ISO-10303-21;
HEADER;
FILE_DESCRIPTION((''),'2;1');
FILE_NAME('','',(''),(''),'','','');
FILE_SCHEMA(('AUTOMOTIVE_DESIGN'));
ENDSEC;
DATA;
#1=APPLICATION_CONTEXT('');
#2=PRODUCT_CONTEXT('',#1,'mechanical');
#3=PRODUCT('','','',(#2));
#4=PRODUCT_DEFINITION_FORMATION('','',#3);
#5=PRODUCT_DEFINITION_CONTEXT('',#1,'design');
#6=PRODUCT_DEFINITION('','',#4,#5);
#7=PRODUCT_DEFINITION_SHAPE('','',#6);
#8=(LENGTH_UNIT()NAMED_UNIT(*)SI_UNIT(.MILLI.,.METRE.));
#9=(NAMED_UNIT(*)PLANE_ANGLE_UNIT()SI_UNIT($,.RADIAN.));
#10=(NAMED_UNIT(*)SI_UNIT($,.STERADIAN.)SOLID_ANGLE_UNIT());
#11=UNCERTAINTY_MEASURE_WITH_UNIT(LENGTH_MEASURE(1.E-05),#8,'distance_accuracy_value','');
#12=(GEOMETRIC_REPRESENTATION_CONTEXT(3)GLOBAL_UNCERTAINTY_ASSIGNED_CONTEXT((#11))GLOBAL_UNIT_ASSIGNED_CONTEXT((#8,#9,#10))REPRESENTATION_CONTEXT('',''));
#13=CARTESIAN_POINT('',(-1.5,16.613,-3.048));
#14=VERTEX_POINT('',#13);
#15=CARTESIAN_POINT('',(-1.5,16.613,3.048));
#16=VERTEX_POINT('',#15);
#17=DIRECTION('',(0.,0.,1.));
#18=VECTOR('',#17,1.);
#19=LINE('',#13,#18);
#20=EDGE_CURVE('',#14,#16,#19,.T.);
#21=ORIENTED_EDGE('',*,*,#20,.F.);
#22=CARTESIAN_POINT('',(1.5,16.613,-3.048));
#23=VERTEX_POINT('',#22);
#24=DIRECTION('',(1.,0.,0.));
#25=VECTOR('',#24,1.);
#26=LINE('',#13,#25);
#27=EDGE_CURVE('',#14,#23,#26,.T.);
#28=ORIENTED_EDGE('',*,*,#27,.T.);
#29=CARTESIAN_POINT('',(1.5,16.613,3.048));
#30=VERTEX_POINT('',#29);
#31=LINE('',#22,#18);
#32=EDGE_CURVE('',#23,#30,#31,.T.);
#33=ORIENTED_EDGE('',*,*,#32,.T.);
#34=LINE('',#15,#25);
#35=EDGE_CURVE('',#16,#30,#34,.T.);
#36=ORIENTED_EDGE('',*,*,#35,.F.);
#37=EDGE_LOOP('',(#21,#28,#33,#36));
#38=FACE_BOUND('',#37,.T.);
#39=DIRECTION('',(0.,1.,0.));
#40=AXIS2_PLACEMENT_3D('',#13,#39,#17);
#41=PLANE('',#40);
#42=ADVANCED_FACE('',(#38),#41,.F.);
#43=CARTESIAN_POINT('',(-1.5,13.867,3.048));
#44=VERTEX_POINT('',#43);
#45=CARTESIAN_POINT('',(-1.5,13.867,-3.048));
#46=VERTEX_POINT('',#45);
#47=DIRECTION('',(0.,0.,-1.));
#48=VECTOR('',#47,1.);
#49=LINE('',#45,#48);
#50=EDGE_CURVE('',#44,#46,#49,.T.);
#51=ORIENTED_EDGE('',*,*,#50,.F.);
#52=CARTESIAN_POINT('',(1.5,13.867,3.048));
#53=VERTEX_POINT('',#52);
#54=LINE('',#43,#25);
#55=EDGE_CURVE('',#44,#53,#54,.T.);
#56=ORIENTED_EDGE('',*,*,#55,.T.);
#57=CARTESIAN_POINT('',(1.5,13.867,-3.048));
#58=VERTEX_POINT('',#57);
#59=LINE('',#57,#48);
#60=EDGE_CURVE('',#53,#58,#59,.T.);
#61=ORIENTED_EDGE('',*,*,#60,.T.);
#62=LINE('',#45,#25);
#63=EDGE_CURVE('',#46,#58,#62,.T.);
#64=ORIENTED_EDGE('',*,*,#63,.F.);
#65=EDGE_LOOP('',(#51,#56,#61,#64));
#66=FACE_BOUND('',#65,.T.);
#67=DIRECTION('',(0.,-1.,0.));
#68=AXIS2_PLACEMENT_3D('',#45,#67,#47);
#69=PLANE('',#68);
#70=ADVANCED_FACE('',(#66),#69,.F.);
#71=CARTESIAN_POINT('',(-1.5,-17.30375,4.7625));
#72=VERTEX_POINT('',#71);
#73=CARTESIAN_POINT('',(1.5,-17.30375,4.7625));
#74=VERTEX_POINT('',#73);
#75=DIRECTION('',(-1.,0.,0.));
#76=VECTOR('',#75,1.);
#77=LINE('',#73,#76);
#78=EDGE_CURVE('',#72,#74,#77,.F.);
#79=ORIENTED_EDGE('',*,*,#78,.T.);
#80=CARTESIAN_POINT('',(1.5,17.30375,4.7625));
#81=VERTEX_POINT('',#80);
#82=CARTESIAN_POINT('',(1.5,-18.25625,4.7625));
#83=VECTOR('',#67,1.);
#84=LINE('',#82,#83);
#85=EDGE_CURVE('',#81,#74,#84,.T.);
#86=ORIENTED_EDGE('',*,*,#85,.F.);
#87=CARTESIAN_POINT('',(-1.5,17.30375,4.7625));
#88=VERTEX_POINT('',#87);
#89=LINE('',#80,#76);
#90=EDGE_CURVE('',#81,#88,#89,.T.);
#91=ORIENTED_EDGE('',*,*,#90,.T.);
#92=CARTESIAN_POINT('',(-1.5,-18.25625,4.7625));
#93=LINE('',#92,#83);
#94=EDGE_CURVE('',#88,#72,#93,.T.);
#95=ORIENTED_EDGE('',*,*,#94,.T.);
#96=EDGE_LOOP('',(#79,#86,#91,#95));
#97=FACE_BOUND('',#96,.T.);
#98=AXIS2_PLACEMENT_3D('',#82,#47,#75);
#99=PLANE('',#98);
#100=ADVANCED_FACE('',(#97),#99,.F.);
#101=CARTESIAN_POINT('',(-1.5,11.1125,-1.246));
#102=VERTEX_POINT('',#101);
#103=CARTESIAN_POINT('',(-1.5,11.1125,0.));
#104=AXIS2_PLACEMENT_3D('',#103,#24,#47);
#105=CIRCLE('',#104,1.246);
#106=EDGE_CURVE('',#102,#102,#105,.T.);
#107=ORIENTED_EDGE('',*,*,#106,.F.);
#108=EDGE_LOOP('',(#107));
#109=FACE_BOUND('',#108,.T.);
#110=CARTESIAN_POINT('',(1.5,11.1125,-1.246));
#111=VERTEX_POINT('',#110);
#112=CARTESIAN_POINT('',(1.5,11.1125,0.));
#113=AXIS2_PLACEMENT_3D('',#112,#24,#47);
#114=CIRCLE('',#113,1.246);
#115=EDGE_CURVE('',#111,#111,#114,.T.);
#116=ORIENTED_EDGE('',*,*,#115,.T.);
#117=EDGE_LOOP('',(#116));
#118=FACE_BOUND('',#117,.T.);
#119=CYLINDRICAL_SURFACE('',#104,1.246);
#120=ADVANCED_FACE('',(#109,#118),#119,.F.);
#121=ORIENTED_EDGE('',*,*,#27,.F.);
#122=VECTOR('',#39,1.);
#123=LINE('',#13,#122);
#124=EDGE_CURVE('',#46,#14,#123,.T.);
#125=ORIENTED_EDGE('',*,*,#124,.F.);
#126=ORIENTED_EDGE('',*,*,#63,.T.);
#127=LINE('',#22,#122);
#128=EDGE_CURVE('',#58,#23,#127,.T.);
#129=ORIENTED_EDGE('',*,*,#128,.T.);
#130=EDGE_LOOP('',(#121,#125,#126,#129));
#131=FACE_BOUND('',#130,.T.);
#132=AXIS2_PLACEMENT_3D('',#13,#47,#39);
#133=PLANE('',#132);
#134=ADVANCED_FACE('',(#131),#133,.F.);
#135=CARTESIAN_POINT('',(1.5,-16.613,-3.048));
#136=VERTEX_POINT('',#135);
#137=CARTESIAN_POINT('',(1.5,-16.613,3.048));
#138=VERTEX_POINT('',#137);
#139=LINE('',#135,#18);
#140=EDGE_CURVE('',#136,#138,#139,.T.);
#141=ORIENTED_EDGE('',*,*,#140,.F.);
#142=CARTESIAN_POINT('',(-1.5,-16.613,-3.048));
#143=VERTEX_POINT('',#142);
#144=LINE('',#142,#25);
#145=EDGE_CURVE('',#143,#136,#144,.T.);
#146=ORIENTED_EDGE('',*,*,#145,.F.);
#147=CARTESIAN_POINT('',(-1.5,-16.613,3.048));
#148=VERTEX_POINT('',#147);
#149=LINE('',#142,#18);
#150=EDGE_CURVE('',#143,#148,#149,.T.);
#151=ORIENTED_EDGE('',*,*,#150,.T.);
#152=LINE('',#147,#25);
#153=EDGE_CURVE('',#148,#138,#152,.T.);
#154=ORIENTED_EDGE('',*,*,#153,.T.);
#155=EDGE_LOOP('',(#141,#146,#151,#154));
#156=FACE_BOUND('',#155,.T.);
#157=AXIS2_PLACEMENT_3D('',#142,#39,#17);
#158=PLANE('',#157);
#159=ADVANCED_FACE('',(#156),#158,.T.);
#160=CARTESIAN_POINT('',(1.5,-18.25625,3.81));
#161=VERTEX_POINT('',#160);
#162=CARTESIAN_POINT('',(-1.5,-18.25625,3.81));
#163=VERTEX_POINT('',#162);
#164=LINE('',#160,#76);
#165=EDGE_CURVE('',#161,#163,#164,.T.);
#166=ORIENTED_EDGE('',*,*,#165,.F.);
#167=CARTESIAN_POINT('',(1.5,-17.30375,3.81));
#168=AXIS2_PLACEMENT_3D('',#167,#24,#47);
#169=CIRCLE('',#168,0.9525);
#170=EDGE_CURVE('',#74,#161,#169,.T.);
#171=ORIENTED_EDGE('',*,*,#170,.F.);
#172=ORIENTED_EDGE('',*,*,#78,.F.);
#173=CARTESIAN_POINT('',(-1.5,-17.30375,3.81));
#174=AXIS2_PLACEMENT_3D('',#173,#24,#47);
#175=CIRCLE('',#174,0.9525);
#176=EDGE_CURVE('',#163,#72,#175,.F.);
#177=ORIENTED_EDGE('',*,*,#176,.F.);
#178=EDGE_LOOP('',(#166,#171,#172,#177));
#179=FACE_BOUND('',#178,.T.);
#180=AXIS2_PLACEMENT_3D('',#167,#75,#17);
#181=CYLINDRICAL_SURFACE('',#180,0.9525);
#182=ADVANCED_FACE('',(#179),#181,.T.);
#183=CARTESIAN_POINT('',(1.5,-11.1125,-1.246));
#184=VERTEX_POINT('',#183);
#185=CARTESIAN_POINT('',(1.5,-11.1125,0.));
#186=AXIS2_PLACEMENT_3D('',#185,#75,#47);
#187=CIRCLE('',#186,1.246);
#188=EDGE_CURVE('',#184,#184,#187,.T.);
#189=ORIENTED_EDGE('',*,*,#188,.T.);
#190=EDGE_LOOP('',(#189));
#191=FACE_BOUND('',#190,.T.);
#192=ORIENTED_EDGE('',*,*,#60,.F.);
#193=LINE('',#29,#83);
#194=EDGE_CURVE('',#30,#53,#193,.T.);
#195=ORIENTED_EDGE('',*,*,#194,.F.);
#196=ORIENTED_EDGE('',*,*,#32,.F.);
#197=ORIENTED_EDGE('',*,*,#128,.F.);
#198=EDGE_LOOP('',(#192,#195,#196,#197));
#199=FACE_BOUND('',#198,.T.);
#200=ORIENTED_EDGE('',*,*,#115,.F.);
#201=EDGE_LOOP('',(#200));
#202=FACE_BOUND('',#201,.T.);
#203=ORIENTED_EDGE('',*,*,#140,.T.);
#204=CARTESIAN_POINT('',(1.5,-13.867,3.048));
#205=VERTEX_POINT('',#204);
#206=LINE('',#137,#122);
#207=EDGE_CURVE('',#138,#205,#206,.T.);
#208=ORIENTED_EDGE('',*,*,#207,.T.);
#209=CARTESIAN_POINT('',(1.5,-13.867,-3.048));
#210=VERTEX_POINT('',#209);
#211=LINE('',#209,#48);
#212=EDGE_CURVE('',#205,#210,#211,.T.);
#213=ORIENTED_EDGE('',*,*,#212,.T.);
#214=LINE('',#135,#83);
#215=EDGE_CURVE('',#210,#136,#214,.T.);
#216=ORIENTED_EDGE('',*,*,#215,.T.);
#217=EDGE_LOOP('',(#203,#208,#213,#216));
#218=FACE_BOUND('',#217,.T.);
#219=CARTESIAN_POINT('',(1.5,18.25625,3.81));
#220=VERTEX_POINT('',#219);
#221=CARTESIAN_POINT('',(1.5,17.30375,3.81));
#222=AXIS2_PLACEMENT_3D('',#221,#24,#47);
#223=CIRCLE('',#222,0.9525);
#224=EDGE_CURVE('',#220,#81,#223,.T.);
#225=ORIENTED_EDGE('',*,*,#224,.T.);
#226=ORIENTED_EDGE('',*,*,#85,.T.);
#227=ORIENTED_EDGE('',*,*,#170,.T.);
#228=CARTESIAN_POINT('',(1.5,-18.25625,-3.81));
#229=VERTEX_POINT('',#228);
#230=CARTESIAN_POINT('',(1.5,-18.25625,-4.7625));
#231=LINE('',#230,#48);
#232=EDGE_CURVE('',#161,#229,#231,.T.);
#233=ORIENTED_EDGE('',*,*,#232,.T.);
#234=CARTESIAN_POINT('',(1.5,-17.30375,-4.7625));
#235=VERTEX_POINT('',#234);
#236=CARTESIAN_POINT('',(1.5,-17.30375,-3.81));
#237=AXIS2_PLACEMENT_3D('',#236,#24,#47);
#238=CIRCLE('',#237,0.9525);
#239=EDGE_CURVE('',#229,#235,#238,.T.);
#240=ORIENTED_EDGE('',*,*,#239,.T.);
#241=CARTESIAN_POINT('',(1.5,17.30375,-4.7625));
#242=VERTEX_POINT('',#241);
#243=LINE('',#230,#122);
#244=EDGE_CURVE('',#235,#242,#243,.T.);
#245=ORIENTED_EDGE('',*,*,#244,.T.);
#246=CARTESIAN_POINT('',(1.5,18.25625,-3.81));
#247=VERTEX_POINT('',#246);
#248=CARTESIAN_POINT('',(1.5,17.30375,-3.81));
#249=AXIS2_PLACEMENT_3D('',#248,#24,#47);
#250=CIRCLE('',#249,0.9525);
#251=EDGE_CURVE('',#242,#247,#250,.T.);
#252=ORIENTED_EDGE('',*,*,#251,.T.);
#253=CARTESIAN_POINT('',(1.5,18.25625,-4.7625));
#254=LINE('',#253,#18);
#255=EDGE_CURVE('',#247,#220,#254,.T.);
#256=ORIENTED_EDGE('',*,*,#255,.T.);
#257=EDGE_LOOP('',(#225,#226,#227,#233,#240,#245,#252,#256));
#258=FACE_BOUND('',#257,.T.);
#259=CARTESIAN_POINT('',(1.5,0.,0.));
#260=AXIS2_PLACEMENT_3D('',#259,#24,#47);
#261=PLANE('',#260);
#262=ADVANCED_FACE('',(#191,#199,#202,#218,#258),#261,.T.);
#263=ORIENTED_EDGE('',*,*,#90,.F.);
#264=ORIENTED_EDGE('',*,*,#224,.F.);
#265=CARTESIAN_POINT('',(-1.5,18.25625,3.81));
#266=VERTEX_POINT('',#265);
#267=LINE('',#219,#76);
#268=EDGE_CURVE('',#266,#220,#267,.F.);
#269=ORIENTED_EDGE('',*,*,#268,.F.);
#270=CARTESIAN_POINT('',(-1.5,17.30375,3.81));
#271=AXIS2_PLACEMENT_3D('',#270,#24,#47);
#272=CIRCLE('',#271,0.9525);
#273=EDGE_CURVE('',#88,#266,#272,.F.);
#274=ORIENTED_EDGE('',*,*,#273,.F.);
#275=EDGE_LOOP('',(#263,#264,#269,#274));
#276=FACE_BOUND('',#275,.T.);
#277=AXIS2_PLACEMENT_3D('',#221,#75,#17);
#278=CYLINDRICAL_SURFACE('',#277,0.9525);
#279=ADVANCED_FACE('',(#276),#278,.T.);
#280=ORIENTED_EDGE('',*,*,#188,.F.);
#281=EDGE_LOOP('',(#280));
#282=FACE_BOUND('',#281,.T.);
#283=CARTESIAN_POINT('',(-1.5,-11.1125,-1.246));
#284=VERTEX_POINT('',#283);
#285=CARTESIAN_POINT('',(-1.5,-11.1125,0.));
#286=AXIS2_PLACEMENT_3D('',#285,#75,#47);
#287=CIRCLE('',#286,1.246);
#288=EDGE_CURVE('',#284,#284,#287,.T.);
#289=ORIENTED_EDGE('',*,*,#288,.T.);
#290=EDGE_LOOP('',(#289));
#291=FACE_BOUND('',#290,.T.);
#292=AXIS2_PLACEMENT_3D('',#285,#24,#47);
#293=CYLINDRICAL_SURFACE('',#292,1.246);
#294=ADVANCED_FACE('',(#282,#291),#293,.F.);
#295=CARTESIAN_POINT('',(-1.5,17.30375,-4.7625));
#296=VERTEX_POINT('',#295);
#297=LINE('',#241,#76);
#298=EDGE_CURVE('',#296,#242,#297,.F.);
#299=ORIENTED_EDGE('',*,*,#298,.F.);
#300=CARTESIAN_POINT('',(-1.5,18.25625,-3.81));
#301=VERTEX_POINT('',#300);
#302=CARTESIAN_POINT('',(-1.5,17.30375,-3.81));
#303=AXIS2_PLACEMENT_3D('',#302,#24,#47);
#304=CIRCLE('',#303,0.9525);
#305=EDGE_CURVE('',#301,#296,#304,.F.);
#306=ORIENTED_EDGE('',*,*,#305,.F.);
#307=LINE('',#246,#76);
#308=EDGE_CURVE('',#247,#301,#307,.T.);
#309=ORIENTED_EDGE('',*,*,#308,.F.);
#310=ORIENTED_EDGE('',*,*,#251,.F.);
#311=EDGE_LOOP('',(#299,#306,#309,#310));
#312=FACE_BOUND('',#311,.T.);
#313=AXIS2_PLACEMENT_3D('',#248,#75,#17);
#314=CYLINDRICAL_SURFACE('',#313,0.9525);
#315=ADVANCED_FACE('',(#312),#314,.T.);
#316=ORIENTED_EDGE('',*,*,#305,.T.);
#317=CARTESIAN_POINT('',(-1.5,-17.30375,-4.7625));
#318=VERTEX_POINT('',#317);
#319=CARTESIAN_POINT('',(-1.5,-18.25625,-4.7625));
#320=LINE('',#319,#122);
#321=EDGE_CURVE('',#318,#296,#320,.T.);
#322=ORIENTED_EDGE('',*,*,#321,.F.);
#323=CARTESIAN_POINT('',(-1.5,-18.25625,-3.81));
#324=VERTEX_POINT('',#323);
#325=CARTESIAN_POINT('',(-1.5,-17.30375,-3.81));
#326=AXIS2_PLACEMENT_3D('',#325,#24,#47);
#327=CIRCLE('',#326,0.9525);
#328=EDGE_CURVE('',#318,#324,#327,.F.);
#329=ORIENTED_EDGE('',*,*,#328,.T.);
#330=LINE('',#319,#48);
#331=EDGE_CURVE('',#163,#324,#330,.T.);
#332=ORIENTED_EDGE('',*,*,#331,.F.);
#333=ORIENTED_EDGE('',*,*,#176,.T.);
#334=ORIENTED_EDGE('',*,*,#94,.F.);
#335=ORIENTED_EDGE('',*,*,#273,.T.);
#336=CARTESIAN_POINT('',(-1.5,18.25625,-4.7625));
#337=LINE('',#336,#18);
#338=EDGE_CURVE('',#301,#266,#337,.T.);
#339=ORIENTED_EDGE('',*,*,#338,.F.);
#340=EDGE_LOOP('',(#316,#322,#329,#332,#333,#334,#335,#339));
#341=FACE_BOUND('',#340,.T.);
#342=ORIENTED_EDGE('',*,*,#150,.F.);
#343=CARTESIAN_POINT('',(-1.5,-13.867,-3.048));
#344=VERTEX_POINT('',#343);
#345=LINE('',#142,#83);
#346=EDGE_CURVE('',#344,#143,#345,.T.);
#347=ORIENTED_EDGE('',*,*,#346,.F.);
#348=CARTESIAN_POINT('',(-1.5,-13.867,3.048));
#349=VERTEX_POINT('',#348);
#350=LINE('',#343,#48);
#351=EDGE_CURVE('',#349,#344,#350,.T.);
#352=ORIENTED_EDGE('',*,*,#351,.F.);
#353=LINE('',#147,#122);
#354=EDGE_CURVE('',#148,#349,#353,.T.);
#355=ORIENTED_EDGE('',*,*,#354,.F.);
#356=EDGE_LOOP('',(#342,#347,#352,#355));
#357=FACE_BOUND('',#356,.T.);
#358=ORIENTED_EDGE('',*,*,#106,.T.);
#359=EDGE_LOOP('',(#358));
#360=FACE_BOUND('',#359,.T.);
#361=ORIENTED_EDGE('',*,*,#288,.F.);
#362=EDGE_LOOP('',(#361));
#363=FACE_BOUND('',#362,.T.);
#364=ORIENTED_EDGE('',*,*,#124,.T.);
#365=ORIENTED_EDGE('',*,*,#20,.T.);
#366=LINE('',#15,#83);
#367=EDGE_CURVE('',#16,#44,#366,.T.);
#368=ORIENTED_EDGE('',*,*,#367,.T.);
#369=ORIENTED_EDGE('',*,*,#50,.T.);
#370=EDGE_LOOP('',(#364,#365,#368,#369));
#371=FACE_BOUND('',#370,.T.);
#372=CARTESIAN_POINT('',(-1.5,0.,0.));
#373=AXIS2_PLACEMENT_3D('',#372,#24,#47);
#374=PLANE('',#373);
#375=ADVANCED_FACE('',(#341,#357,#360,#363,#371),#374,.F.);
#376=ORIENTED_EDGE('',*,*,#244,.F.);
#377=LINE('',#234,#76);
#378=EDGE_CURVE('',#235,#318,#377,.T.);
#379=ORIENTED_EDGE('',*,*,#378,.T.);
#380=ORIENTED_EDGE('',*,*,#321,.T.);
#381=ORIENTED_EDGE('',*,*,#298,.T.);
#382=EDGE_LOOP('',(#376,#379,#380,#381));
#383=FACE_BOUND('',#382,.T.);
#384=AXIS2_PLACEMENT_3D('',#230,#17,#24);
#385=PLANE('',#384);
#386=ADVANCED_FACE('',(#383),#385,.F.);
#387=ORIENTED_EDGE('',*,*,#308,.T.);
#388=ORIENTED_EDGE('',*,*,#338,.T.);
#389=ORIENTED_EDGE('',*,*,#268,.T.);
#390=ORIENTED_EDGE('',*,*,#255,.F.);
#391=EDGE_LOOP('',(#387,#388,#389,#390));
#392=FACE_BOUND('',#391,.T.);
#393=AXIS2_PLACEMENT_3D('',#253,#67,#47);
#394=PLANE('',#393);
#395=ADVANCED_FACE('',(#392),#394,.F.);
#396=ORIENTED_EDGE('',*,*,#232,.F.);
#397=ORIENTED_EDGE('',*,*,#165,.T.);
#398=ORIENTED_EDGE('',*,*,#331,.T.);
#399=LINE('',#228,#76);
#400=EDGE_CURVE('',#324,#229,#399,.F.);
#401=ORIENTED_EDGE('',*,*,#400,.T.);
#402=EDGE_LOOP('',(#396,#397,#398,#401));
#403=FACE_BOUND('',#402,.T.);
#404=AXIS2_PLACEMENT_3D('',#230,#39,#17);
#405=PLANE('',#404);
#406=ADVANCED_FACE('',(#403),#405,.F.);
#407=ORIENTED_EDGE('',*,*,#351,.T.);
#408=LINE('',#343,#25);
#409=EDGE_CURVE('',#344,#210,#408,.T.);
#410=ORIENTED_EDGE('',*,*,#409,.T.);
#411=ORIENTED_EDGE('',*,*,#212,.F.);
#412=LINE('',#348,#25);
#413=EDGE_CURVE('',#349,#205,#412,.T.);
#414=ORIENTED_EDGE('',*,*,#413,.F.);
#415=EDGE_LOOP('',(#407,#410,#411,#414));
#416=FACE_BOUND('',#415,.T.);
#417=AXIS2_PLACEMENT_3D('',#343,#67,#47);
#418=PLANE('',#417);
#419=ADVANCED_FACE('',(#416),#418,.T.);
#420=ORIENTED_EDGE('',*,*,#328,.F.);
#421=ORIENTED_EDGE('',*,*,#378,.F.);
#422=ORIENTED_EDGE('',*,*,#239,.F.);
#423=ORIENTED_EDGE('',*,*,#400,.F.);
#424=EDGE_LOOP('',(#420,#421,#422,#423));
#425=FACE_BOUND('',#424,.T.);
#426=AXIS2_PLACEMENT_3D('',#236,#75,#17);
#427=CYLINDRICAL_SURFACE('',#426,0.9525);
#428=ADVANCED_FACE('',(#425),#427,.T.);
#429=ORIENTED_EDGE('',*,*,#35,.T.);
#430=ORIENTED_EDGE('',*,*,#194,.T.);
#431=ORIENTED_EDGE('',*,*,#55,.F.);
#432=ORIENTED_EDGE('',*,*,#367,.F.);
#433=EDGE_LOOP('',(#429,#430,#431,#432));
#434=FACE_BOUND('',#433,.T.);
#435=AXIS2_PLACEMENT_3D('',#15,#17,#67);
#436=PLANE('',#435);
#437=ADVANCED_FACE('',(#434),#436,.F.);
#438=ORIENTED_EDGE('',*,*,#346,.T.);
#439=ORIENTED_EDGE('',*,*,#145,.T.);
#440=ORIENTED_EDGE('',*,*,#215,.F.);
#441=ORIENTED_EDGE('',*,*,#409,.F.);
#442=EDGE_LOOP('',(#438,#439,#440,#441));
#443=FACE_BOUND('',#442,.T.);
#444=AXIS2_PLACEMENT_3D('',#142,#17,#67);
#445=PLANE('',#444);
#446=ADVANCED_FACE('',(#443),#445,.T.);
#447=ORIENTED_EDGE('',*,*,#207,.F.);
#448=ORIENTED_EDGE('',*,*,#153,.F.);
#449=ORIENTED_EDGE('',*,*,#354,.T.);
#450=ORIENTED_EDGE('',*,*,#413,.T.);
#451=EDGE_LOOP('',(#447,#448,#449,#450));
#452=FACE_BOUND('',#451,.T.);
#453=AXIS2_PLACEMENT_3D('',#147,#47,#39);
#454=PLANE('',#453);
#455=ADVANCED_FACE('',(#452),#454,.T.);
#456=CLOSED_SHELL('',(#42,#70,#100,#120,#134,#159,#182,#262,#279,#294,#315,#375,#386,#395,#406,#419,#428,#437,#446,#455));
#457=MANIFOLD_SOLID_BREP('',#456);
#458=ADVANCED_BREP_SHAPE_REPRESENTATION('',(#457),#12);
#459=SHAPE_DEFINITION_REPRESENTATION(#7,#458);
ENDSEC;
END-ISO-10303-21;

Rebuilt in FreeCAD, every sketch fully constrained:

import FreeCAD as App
import Part
import Sketcher

V = App.Vector
Q = App.Units.Quantity


def edges_at(feature, points):
    """Names of the edges that pass closest to the given points."""
    edges = feature.Shape.Edges
    near = lambda p: min(range(len(edges)), key=lambda i: edges[i].distToShape(Part.Vertex(*p))[0])
    return sorted({f"Edge{near(p) + 1}" for p in points})


def add_polygon(sketch, points):
    """Adds a closed chain of lines whose ends are joined by coincident constraints."""
    first, n = sketch.GeometryCount, len(points)
    for a, b in zip(points, points[1:] + points[:1]):
        sketch.addGeometry(Part.LineSegment(App.Vector(*a, 0), App.Vector(*b, 0)), False)
    for i in range(n):
        sketch.addConstraint(Sketcher.Constraint("Coincident", first + i, 2, first + (i + 1) % n, 1))

doc = App.newDocument("Part")
body = doc.addObject("PartDesign::Body", "Body")

# Sketch on YZ plane
sketch1 = body.newObject("Sketcher::SketchObject", "Sketch")
sketch1.AttachmentSupport = (doc.getObject("YZ_Plane"), [""])
sketch1.MapMode = "FlatFace"
add_polygon(sketch1, [(18, 5), (-18, 5), (-18, -5), (18, -5)])  # lines 0-3
sketch1.addConstraint(Sketcher.Constraint("Horizontal", 0))
sketch1.addConstraint(Sketcher.Constraint("Vertical", 1))
sketch1.addConstraint(Sketcher.Constraint("Horizontal", 2))
sketch1.addConstraint(Sketcher.Constraint("Vertical", 3))
sketch1.addConstraint(Sketcher.Constraint("Symmetric", 0, 2, 2, 2, -1, 1))
sketch1.addConstraint(Sketcher.Constraint("DistanceX", 0, 2, 0, 1, Q("1.4375 in")))
sketch1.addConstraint(Sketcher.Constraint("DistanceY", 1, 2, 1, 1, Q("0.375 in")))
pad1 = body.newObject("PartDesign::Pad", "Pad")
pad1.Profile = sketch1
pad1.Length = 3
pad1.Midplane = True
doc.recompute()

fillet = body.newObject("PartDesign::Fillet", "Fillet")
fillet.Base = (pad1, edges_at(pad1, [
    (0, 18.256, 4.763),
    (0, 18.256, -4.763),
    (0, -18.256, -4.763),
    (0, -18.256, 4.763),
]))
fillet.Radius = Q("0.0375 in")

# Sketch on YZ plane
sketch2 = body.newObject("Sketcher::SketchObject", "Sketch001")
sketch2.AttachmentSupport = (doc.getObject("YZ_Plane"), [""])
sketch2.MapMode = "FlatFace"
sketch2.AttachmentOffset = App.Placement(V(0, 0, 1.5), App.Rotation())
sketch2.addGeometry(Part.Circle(V(11.1, 0, 0), V(0, 0, 1), 1.2), False)  # 0
add_polygon(sketch2, [(16.6, 3), (13.9, 3), (13.9, -3), (16.6, -3)])  # lines 1-4
sketch2.addConstraint(Sketcher.Constraint("Horizontal", 1))
sketch2.addConstraint(Sketcher.Constraint("Vertical", 2))
sketch2.addConstraint(Sketcher.Constraint("Horizontal", 3))
sketch2.addConstraint(Sketcher.Constraint("Vertical", 4))
sketch2.addConstraint(Sketcher.Constraint("PointOnObject", 0, 3, -1))
sketch2.addConstraint(Sketcher.Constraint("DistanceY", 2, 2, 2, 1, Q("0.24 in")))
sketch2.addConstraint(Sketcher.Constraint("Diameter", 0, Q("2.492 mm")))
sketch2.addConstraint(Sketcher.Constraint("DistanceY", -1, 1, 1, 2, Q("0.12 in")))
sketch2.addConstraint(Sketcher.Constraint("DistanceX", -1, 1, 0, 3, Q("0.4375 in")))
sketch2.addConstraint(Sketcher.Constraint("DistanceX", 1, 2, 1, 1, Q("2.746 mm")))
sketch2.addConstraint(Sketcher.Constraint("DistanceX", -1, 1, 1, 2, Q("13.867 mm")))
pocket1 = body.newObject("PartDesign::Pocket", "Pocket")
pocket1.Profile = sketch2
pocket1.Type = "ThroughAll"
doc.recompute()

mirrored = body.newObject("PartDesign::Mirrored", "Mirrored")
mirrored.Originals = [pocket1]
mirrored.MirrorPlane = (doc.getObject("XZ_Plane"), [""])
body.Tip = mirrored

doc.recompute()
